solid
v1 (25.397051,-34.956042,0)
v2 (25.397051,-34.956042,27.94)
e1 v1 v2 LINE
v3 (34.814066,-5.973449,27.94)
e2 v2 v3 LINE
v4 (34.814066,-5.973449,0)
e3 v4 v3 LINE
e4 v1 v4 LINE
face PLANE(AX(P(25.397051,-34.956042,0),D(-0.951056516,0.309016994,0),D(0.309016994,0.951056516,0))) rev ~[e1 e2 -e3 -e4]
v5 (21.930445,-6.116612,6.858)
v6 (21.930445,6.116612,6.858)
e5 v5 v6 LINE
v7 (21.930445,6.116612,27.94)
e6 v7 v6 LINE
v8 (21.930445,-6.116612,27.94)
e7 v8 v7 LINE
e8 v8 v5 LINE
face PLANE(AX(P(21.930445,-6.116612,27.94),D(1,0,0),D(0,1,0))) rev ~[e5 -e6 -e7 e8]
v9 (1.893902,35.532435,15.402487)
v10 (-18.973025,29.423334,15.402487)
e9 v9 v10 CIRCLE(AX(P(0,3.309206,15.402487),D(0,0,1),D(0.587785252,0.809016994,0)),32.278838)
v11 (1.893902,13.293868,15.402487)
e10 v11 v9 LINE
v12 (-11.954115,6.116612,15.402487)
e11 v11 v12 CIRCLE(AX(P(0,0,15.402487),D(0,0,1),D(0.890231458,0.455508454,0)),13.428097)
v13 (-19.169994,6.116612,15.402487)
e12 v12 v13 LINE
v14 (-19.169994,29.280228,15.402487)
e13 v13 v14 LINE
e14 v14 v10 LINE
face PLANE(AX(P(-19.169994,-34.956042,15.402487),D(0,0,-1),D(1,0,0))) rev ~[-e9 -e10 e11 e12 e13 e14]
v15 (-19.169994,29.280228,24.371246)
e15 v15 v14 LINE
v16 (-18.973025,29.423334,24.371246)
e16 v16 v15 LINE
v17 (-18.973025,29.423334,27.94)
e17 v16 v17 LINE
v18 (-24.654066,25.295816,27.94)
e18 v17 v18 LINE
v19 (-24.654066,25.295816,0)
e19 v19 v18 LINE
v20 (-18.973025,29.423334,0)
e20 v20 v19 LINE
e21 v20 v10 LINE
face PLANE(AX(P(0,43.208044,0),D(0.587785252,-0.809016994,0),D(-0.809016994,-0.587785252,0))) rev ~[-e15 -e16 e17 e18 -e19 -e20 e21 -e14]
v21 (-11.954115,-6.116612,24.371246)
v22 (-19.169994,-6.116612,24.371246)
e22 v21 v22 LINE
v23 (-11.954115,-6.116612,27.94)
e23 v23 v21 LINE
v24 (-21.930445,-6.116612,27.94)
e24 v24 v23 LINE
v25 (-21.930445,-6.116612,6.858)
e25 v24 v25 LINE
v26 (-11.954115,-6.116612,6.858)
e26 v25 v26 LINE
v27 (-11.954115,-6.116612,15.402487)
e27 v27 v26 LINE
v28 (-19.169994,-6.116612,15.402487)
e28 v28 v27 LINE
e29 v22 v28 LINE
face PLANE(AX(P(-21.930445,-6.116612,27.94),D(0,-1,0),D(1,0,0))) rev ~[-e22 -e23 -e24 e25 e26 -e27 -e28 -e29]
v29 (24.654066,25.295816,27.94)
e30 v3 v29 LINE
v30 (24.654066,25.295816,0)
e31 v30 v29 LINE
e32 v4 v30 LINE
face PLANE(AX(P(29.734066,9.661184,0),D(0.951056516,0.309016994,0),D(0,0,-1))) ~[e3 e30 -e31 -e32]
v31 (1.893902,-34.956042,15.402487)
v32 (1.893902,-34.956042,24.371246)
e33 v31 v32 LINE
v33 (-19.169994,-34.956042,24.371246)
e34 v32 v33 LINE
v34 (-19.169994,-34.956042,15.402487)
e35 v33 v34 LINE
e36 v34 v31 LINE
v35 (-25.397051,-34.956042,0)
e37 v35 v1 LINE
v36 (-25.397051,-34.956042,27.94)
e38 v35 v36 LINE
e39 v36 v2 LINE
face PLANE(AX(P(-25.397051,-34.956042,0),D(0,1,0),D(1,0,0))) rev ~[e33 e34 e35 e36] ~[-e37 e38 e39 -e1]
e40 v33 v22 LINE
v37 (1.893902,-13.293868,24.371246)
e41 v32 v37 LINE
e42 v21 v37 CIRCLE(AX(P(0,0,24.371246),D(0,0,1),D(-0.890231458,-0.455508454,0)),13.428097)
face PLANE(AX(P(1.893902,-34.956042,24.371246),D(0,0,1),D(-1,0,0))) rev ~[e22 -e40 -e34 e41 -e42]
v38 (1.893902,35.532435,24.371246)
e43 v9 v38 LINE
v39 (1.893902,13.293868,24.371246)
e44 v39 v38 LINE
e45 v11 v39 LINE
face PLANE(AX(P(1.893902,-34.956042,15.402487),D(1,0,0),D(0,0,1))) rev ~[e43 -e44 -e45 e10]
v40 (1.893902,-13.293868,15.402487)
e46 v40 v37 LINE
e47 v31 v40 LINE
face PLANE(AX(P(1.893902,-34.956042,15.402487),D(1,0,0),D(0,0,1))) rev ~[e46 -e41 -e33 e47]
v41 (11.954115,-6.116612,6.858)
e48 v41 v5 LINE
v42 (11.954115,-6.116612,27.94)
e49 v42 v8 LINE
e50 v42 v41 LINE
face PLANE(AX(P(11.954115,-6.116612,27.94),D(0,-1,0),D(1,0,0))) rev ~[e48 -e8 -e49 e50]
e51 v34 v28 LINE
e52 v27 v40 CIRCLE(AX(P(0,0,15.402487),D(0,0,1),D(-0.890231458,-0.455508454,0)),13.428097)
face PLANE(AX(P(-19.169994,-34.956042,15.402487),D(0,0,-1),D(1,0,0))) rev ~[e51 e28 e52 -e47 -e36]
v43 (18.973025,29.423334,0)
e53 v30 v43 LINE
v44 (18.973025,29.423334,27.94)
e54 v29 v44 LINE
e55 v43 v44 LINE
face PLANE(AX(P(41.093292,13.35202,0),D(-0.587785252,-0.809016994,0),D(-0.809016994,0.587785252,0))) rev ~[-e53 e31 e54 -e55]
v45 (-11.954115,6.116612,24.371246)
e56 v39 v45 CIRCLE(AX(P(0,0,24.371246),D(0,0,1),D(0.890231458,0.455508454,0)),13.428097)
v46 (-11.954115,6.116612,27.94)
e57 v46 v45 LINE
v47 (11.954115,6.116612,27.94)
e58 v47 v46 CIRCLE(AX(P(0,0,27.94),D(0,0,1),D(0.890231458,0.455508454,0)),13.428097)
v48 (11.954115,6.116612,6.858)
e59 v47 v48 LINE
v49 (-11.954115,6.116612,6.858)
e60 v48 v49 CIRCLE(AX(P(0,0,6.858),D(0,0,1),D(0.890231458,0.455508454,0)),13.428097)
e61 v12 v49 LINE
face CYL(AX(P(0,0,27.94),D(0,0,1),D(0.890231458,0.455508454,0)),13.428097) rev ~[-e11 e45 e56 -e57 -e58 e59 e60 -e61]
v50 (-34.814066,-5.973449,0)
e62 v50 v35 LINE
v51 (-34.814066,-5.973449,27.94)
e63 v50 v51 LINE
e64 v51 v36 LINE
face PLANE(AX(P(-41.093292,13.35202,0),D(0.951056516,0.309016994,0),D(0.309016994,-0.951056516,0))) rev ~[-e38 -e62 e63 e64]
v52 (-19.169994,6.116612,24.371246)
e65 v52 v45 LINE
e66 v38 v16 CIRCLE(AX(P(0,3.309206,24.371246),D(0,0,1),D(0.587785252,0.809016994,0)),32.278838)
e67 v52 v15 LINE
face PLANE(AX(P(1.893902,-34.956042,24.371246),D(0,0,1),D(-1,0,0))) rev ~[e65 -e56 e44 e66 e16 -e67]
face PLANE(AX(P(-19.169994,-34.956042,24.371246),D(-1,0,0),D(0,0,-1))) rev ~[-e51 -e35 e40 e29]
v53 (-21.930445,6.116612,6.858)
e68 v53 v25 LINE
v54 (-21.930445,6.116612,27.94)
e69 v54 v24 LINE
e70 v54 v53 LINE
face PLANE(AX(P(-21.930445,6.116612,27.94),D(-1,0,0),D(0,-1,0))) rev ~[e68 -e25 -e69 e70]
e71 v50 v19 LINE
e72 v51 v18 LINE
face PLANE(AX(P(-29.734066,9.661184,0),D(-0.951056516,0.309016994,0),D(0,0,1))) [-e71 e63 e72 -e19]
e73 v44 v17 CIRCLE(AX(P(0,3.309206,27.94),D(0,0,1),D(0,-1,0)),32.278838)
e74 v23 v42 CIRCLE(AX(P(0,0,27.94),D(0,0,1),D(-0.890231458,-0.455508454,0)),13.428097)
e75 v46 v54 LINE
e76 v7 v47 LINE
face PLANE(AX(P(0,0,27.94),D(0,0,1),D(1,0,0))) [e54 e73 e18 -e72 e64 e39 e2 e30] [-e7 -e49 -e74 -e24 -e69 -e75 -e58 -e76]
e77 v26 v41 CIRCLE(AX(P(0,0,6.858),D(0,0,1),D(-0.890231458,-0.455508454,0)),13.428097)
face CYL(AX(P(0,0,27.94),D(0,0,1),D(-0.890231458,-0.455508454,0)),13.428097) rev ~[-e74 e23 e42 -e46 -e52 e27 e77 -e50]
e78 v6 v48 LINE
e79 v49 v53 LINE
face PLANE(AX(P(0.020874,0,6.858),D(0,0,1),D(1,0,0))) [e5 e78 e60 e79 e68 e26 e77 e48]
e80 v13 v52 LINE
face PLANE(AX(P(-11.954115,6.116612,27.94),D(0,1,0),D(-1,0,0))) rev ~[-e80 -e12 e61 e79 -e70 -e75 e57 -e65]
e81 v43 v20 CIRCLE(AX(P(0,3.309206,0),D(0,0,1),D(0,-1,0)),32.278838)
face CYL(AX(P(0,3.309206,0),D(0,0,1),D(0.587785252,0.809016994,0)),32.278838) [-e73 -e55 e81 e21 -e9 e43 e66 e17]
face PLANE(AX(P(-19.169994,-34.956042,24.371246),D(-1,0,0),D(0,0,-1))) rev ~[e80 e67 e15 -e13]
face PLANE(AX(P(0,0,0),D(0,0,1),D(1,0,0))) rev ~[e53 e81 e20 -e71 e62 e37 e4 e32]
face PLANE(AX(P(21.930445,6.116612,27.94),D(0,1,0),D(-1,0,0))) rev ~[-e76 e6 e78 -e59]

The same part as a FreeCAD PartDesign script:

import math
import FreeCAD as App
import Part
import Sketcher
from FreeCAD import Vector
Q = App.Units.Quantity


def edges_at(feature, points):
    """Names of the edges that pass closest to the given points."""
    edges = feature.Shape.Edges
    near = lambda p: min(range(len(edges)), key=lambda i: edges[i].distToShape(Part.Vertex(*p))[0])
    return sorted({f"Edge{near(p) + 1}" for p in points})

doc = App.newDocument("Part")
body = doc.addObject("PartDesign::Body", "Body")

# Sketch on XY plane
sketch1 = doc.addObject("Sketcher::SketchObject", "Sketch")
body.addObject(sketch1)
sketch1.AttachmentSupport = (doc.XY_Plane, [""])
sketch1.MapMode = "FlatFace"
sketch1.addGeometry([
    Part.LineSegment(Vector(-25.397051, -34.956042, 0), Vector(25.397051, -34.956042, 0)),  # 0
    Part.LineSegment(Vector(25.397051, -34.956042, 0), Vector(41.093292, 13.35202, 0)),  # 1
    Part.LineSegment(Vector(41.093292, 13.35202, 0), Vector(0, 43.208044, 0)),  # 2
    Part.LineSegment(Vector(0, 43.208044, 0), Vector(-41.093292, 13.35202, 0)),  # 3
    Part.LineSegment(Vector(-41.093292, 13.35202, 0), Vector(-25.397051, -34.956042, 0)),  # 4
], False)
sketch1.addConstraint([
    Sketcher.Constraint("Coincident", 0, 2, 1, 1),
    Sketcher.Constraint("Coincident", 1, 2, 2, 1),
    Sketcher.Constraint("Coincident", 2, 2, 3, 1),
    Sketcher.Constraint("Coincident", 3, 2, 4, 1),
    Sketcher.Constraint("Coincident", 4, 2, 0, 1),
    Sketcher.Constraint("Horizontal", 0),
    Sketcher.Constraint("Symmetric", 1, 2, 3, 2, -2),
    Sketcher.Constraint("PointOnObject", 2, 2, -2),
    Sketcher.Constraint("Equal", 1, 2),
    Sketcher.Constraint("Equal", 3, 4),
    Sketcher.Constraint("Angle", 1, Q("72 deg")),
    Sketcher.Constraint("Angle", 2, Q("144 deg")),
    Sketcher.Constraint("DistanceX", 0, 1, 0, 2, 50.794102),
    Sketcher.Constraint("DistanceY", 0, 2, -1, 1, 34.956042),
])
pad1 = doc.addObject("PartDesign::Pad", "Pad")
body.addObject(pad1)
pad1.Profile = sketch1
pad1.Length = Q("1.1 in")

# Sketch on XY plane
sketch2 = doc.addObject("Sketcher::SketchObject", "Sketch001")
body.addObject(sketch2)
sketch2.AttachmentSupport = (doc.XY_Plane, [""])
sketch2.MapMode = "FlatFace"
sketch2.AttachmentOffset = App.Placement(Vector(0, 0, 1.1 * 25.4), App.Rotation())
sketch2.addGeometry([
    Part.ArcOfCircle(Part.Circle(Vector(0, 0, 0), Vector(0, 0, 1), 13.428097), math.radians(-152.902346), math.radians(-27.097654)),  # 0
    Part.LineSegment(Vector(11.954115, -6.116612, 0), Vector(21.930445, -6.116612, 0)),  # 1
    Part.LineSegment(Vector(21.930445, -6.116612, 0), Vector(21.930445, 6.116612, 0)),  # 2
    Part.LineSegment(Vector(21.930445, 6.116612, 0), Vector(11.954115, 6.116612, 0)),  # 3
    Part.ArcOfCircle(Part.Circle(Vector(0, 0, 0), Vector(0, 0, 1), 13.428097), math.radians(27.097654), math.radians(152.902346)),  # 4
    Part.LineSegment(Vector(-11.954115, 6.116612, 0), Vector(-21.930445, 6.116612, 0)),  # 5
    Part.LineSegment(Vector(-21.930445, 6.116612, 0), Vector(-21.930445, -6.116612, 0)),  # 6
    Part.LineSegment(Vector(-21.930445, -6.116612, 0), Vector(-11.954115, -6.116612, 0)),  # 7
], False)
sketch2.addConstraint([
    Sketcher.Constraint("Coincident", 0, 2, 1, 1),
    Sketcher.Constraint("Coincident", 1, 2, 2, 1),
    Sketcher.Constraint("Coincident", 2, 2, 3, 1),
    Sketcher.Constraint("Coincident", 3, 2, 4, 1),
    Sketcher.Constraint("Coincident", 4, 2, 5, 1),
    Sketcher.Constraint("Coincident", 5, 2, 6, 1),
    Sketcher.Constraint("Coincident", 6, 2, 7, 1),
    Sketcher.Constraint("Coincident", 7, 2, 0, 1),
    Sketcher.Constraint("Horizontal", 1),
    Sketcher.Constraint("Vertical", 2),
    Sketcher.Constraint("Horizontal", 3),
    Sketcher.Constraint("Horizontal", 5),
    Sketcher.Constraint("Vertical", 6),
    Sketcher.Constraint("Horizontal", 7),
    Sketcher.Constraint("Coincident", 0, 3, -1, 1),
    Sketcher.Constraint("Coincident", 4, 3, -1, 1),
    Sketcher.Constraint("Equal", 0, 4),
    Sketcher.Constraint("Symmetric", 1, 2, 5, 2, -1, 1),
    Sketcher.Constraint("Horizontal", 3, 2, 4, 2),
    Sketcher.Constraint("Horizontal", 1, 2, 6, 2),
    Sketcher.Constraint("Radius", 0, 13.428097),
    Sketcher.Constraint("DistanceX", 1, 1, 1, 2, 9.97633),
    Sketcher.Constraint("DistanceY", 2, 1, 2, 2, 12.233224),
])
pocket1 = doc.addObject("PartDesign::Pocket", "Pocket")
body.addObject(pocket1)
pocket1.Profile = sketch2
pocket1.Length = Q("0.83 in")
doc.recompute()

chamfer = doc.addObject("PartDesign::Chamfer", "Chamfer")
body.addObject(chamfer)
chamfer.Base = (pocket1, edges_at(pocket1, [(41.093, 13.352, 13.97), (-41.093, 13.352, 13.97)]))
chamfer.Size = Q("0.8 in")
doc.recompute()

fillet = doc.addObject("PartDesign::Fillet", "Fillet")
body.addObject(fillet)
fillet.Base = (chamfer, edges_at(chamfer, [(0, 43.208, 13.97)]))
fillet.Radius = 32.278838

# Sketch on XZ plane
sketch3 = doc.addObject("Sketcher::SketchObject", "Sketch002")
body.addObject(sketch3)
sketch3.AttachmentSupport = (doc.XZ_Plane, [""])
sketch3.MapMode = "FlatFace"
sketch3.AttachmentOffset = App.Placement(Vector(0, 0, 34.956042), App.Rotation())
sketch3.addGeometry([
    Part.LineSegment(Vector(-19.169994, 24.371246, 0), Vector(-19.169994, 15.402487, 0)),
    Part.LineSegment(Vector(-19.169994, 15.402487, 0), Vector(1.893902, 15.402487, 0)),
    Part.LineSegment(Vector(1.893902, 15.402487, 0), Vector(1.893902, 24.371246, 0)),
    Part.LineSegment(Vector(1.893902, 24.371246, 0), Vector(-19.169994, 24.371246, 0)),
], False)
sketch3.addConstraint([
    Sketcher.Constraint("Coincident", 0, 2, 1, 1),
    Sketcher.Constraint("Coincident", 1, 2, 2, 1),
    Sketcher.Constraint("Coincident", 2, 2, 3, 1),
    Sketcher.Constraint("Coincident", 3, 2, 0, 1),
    Sketcher.Constraint("Vertical", 0),
    Sketcher.Constraint("Horizontal", 1),
    Sketcher.Constraint("Vertical", 2),
    Sketcher.Constraint("Horizontal", 3),
    Sketcher.Constraint("DistanceY", 0, 2, 0, 1, 8.968759),
    Sketcher.Constraint("DistanceX", 1, 1, 1, 2, 21.063896),
    Sketcher.Constraint("DistanceX", 0, 2, -1, 1, 19.169994),
    Sketcher.Constraint("DistanceY", -1, 1, 0, 2, 15.402487),
])
pocket2 = doc.addObject("PartDesign::Pocket", "Pocket001")
body.addObject(pocket2)
pocket2.Profile = sketch3
pocket2.Length = Q("3.14 in")

doc.recompute()
